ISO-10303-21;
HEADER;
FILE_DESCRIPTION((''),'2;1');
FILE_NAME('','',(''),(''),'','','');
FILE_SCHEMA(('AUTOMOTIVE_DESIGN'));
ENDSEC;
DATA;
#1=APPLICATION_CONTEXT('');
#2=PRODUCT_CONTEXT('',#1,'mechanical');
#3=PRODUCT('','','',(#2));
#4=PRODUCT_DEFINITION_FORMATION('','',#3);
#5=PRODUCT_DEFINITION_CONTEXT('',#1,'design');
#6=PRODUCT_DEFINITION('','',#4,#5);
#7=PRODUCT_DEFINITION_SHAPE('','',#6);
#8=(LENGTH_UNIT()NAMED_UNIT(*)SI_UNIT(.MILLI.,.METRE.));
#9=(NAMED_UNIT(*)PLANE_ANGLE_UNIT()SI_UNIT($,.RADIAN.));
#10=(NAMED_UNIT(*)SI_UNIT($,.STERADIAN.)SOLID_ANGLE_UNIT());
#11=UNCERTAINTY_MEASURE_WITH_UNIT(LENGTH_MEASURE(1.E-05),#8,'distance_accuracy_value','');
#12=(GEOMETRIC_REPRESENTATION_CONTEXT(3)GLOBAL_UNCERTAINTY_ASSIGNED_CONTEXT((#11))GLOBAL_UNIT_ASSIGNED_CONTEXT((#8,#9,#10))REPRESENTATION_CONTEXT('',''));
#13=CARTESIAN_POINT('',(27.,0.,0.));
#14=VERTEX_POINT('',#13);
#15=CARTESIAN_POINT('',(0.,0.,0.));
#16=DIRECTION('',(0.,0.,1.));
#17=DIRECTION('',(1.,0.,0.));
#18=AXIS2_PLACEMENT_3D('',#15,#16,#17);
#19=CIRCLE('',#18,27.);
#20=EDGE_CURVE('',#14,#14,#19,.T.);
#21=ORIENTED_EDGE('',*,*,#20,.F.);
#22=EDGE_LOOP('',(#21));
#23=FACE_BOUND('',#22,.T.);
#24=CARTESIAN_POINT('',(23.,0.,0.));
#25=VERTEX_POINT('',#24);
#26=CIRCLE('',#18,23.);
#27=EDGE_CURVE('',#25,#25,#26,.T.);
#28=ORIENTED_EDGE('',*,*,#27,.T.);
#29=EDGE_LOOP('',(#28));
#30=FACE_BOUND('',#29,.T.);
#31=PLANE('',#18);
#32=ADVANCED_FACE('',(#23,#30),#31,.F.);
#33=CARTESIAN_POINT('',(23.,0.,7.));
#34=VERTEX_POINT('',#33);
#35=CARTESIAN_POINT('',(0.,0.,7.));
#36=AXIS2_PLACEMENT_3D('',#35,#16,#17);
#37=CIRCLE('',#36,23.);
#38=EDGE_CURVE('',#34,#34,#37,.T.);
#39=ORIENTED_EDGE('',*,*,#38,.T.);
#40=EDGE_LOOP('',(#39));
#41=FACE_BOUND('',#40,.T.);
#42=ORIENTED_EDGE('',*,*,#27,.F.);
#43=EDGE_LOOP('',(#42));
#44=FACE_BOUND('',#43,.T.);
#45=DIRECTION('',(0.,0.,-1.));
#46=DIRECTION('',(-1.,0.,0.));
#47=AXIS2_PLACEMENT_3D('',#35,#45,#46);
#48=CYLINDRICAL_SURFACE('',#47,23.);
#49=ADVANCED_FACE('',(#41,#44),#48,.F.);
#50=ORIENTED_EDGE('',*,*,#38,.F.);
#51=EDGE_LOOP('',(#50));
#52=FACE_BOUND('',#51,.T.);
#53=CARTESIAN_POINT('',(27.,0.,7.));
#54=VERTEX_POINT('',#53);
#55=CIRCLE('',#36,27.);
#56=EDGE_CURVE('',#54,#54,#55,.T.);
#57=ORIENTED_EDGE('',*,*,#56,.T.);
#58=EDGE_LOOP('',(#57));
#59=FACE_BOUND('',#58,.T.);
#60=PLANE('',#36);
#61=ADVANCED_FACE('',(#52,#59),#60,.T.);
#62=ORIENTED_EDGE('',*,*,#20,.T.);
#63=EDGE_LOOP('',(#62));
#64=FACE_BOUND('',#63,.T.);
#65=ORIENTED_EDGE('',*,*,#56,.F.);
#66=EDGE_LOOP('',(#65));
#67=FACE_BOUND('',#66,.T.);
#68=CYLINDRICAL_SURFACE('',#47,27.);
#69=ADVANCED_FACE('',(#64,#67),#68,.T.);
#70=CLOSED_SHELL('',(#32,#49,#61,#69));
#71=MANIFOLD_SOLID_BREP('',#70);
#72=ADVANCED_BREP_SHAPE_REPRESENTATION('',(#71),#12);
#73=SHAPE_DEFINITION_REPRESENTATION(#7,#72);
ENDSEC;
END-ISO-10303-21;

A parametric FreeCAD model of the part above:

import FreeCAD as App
import Part
import Sketcher

V = App.Vector
Q = App.Units.Quantity

doc = App.newDocument("Part")
body = doc.addObject("PartDesign::Body", "Body")

# Sketch on XY plane
sketch1 = body.newObject("Sketcher::SketchObject", "Sketch")
sketch1.AttachmentSupport = (doc.getObject("XY_Plane"), [""])
sketch1.MapMode = "FlatFace"
sketch1.addGeometry([
    Part.Circle(V(0, 0, 0), V(0, 0, 1), 27),
    Part.Circle(V(0, 0, 0), V(0, 0, 1), 23),
], False)
sketch1.addConstraint([
    Sketcher.Constraint("Coincident", 0, 3, -1, 1),
    Sketcher.Constraint("Coincident", 1, 3, -1, 1),
    Sketcher.Constraint("Diameter", 0, Q("54 mm")),
    Sketcher.Constraint("Diameter", 1, Q("46 mm")),
])
pad1 = body.newObject("PartDesign::Pad", "Pad")
pad1.Profile = sketch1
pad1.Length = 7

doc.recompute()
